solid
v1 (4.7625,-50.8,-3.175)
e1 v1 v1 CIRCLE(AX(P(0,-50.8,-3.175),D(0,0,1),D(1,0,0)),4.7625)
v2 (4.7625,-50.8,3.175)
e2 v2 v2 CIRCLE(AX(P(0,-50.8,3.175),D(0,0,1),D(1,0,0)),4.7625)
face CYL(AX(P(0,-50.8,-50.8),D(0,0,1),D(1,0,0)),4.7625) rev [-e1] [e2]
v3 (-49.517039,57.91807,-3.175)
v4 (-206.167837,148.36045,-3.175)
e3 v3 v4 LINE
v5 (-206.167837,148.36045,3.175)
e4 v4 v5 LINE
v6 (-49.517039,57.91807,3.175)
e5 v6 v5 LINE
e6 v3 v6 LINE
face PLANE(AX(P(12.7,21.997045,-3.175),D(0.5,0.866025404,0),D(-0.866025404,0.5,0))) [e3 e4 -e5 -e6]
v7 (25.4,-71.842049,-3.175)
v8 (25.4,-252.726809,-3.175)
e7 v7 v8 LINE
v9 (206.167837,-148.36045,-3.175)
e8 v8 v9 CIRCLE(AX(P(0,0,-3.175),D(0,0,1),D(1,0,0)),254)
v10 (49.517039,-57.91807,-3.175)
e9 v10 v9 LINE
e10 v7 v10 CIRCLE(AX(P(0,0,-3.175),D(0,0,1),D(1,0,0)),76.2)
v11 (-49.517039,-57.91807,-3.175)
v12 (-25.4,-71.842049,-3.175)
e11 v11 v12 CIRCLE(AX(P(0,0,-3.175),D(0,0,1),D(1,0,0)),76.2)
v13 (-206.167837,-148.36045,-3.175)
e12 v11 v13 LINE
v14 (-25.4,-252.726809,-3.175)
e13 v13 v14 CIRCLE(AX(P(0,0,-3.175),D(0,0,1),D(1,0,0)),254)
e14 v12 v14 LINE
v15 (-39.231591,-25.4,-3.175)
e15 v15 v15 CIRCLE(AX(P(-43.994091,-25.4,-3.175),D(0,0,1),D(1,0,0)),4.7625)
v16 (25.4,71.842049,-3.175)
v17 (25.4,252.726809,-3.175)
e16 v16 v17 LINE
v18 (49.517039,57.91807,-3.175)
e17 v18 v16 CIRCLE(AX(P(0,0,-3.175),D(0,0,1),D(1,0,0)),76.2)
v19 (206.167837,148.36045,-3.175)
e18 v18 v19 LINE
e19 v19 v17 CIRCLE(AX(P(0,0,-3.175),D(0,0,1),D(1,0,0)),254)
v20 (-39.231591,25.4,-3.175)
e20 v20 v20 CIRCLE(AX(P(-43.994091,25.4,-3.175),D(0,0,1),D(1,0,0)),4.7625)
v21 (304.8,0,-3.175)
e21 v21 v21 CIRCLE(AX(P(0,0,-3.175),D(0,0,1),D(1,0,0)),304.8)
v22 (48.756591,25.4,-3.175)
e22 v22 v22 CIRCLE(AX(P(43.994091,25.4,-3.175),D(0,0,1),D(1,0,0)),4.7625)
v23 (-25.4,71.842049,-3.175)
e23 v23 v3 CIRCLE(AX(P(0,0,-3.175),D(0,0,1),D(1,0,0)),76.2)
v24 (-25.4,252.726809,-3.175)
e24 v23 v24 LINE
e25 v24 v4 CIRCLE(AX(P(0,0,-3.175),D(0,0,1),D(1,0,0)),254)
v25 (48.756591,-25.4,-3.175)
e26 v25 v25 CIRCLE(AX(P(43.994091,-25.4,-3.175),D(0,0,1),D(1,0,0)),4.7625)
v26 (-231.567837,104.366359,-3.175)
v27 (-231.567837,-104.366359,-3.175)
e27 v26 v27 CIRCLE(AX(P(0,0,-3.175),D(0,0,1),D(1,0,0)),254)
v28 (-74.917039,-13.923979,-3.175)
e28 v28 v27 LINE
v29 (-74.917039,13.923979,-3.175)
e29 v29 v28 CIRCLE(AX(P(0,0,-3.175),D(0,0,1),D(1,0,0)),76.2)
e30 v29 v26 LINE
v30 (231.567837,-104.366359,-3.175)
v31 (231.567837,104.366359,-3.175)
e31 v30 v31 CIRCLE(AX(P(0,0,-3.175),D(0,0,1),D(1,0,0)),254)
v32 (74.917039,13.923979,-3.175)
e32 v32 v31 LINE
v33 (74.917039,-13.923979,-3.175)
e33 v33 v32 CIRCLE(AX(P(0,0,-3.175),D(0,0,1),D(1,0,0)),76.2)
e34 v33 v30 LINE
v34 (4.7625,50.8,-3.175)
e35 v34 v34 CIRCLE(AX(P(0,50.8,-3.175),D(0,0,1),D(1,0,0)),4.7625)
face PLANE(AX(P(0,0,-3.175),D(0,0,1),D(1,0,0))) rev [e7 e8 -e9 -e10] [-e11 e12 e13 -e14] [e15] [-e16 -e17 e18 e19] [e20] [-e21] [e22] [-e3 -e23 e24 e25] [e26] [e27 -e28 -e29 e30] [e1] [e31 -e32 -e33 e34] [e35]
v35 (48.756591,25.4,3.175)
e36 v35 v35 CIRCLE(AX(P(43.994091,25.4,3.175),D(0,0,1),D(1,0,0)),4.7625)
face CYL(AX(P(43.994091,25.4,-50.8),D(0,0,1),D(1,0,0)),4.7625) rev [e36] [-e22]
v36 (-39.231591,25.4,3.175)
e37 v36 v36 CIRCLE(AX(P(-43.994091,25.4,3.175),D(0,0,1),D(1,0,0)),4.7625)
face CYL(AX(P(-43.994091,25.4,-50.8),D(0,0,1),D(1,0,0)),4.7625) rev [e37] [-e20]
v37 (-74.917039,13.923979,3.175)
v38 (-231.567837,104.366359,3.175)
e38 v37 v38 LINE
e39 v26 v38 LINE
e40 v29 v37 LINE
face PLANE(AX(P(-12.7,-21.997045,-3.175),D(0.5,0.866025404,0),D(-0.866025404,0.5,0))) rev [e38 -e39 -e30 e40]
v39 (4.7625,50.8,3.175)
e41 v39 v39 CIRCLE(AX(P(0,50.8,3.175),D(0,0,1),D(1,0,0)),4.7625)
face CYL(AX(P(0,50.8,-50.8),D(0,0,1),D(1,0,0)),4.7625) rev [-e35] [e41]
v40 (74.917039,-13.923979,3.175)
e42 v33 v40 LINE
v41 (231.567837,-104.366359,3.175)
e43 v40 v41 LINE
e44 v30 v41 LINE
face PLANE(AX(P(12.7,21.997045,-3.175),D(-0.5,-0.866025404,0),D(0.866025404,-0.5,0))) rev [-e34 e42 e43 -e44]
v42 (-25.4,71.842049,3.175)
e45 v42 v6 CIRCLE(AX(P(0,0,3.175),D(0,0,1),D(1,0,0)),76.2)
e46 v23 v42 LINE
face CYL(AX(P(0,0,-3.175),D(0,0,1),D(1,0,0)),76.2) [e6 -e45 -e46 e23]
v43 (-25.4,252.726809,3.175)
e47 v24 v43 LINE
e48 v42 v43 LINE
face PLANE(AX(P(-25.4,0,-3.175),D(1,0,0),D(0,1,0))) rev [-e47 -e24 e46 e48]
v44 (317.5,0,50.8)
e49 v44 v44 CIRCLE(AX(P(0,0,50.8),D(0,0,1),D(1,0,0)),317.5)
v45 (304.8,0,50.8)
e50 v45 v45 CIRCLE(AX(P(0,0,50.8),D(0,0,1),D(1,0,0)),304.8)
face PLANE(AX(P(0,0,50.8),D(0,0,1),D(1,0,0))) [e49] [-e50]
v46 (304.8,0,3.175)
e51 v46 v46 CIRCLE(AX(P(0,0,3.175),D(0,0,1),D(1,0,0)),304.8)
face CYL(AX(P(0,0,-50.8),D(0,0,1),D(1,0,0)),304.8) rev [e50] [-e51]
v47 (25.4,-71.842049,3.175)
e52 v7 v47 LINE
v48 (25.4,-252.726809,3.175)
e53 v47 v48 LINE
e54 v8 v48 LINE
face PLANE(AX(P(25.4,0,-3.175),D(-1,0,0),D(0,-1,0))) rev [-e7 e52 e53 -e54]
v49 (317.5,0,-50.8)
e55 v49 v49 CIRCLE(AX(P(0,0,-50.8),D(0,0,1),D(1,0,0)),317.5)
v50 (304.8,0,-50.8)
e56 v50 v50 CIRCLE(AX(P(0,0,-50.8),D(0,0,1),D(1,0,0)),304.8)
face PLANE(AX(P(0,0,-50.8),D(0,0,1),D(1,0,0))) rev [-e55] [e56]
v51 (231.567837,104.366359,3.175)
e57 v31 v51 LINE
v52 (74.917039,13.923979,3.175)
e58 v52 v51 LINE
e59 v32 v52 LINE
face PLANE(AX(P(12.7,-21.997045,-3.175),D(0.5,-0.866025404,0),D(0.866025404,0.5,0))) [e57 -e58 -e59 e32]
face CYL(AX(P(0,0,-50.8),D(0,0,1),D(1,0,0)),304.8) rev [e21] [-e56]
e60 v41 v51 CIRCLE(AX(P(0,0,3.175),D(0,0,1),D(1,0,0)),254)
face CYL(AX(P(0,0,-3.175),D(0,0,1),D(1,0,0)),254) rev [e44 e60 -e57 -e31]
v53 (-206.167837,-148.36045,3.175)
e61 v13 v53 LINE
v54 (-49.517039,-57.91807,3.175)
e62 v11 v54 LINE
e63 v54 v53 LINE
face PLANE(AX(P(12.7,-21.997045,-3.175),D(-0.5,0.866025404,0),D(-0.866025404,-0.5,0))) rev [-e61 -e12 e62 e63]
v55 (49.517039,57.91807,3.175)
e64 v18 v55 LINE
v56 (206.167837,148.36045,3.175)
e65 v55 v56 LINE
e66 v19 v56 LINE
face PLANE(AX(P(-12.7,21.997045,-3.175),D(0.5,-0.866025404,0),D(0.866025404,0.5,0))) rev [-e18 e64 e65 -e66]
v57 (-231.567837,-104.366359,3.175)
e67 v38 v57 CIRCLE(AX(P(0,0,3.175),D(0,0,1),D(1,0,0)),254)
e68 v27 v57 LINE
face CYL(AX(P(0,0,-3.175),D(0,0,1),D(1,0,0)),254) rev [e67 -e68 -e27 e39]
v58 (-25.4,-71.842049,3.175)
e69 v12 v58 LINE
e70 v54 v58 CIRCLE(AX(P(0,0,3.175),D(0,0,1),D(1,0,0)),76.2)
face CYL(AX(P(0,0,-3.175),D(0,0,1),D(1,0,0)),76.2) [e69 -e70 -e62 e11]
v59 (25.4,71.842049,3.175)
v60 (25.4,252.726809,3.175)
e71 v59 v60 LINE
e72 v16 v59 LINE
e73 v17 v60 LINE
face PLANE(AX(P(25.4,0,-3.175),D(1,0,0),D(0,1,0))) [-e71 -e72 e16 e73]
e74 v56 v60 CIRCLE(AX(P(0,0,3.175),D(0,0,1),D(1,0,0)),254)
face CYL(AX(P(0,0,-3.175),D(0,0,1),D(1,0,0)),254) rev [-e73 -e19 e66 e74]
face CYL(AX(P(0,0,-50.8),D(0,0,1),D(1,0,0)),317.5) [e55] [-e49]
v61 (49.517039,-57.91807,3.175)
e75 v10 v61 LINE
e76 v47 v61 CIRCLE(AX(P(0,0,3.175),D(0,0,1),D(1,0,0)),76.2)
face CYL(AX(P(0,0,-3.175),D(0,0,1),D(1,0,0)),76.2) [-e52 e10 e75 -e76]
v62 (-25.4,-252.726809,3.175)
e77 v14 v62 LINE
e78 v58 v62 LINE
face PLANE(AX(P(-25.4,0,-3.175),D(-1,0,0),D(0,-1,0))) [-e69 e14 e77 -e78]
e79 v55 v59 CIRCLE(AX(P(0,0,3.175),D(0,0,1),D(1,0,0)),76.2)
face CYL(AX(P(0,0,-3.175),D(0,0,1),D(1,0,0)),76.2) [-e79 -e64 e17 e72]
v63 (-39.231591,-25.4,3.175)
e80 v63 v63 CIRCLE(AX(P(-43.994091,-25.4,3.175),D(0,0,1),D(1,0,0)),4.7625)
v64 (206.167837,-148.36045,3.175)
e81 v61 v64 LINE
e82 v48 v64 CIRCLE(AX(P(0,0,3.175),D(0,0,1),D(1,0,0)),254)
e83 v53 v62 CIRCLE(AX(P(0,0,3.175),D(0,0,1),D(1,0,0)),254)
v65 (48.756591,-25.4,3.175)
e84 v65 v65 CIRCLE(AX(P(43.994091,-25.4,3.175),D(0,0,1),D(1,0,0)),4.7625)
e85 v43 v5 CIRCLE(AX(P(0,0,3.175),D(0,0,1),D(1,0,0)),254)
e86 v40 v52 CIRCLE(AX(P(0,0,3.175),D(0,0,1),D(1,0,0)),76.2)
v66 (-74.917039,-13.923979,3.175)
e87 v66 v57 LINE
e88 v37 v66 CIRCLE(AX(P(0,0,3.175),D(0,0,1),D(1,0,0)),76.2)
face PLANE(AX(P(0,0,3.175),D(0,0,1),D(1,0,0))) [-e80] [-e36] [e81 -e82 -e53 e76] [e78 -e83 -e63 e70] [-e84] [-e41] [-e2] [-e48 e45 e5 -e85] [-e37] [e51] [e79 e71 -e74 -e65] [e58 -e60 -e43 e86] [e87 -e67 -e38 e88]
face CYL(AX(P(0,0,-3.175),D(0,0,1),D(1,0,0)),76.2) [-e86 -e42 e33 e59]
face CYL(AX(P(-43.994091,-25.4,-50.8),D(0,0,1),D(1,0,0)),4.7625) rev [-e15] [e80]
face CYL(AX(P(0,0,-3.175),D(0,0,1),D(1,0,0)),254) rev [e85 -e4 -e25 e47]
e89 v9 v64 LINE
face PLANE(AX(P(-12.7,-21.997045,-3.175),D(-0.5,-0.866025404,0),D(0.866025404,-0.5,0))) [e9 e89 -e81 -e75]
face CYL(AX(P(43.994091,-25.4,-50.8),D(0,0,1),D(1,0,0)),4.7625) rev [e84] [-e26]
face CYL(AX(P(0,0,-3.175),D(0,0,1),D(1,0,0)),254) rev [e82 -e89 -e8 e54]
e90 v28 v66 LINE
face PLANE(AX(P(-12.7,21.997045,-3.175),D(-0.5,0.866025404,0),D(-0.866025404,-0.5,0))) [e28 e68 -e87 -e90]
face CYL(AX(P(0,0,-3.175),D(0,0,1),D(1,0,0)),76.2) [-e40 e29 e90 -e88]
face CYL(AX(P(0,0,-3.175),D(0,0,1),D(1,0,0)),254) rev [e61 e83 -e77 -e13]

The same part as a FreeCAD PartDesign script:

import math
import FreeCAD as App
import Part
import Sketcher

V = App.Vector
Q = App.Units.Quantity

doc = App.newDocument("Part")
body = doc.addObject("PartDesign::Body", "Body")

# Sketch on XY plane
sketch1 = body.newObject("Sketcher::SketchObject", "Sketch")
sketch1.AttachmentSupport = (doc.getObject("XY_Plane"), [""])
sketch1.MapMode = "FlatFace"
sketch1.addGeometry([
    Part.Circle(V(0, 0, 0), V(0, 0, 1), 304.8),  # 0
    Part.ArcOfCircle(Part.Circle(V(0, 0, 0), V(0, 0, 1), 254), math.radians(-144.26083), math.radians(-95.73917)),  # 1
    Part.LineSegment(V(-206.167837, -148.36045, 0), V(-49.517039, -57.91807, 0)),  # 2
    Part.ArcOfCircle(Part.Circle(V(0, 0, 0), V(0, 0, 1), 76.2), math.radians(-130.528779), math.radians(-109.471221)),  # 3
    Part.LineSegment(V(-25.4, -71.842049, 0), V(-25.4, -252.726809, 0)),  # 4
    Part.ArcOfCircle(Part.Circle(V(0, 0, 0), V(0, 0, 1), 254), math.radians(-84.26083), math.radians(-35.73917)),  # 5
    Part.LineSegment(V(25.4, -252.726809, 0), V(25.4, -71.842049, 0)),  # 6
    Part.ArcOfCircle(Part.Circle(V(0, 0, 0), V(0, 0, 1), 76.2), math.radians(-70.528779), math.radians(-49.471221)),  # 7
    Part.LineSegment(V(49.517039, -57.91807, 0), V(206.167837, -148.36045, 0)),  # 8
    Part.ArcOfCircle(Part.Circle(V(0, 0, 0), V(0, 0, 1), 254), math.radians(155.73917), math.radians(204.26083)),  # 9
    Part.LineSegment(V(-231.567837, 104.366359, 0), V(-74.917039, 13.923979, 0)),  # 10
    Part.ArcOfCircle(Part.Circle(V(0, 0, 0), V(0, 0, 1), 76.2), math.radians(169.471221), math.radians(190.528779)),  # 11
    Part.LineSegment(V(-74.917039, -13.923979, 0), V(-231.567837, -104.366359, 0)),  # 12
    Part.ArcOfCircle(Part.Circle(V(0, 0, 0), V(0, 0, 1), 254), math.radians(95.73917), math.radians(144.26083)),  # 13
    Part.LineSegment(V(-25.4, 252.726809, 0), V(-25.4, 71.842049, 0)),  # 14
    Part.ArcOfCircle(Part.Circle(V(0, 0, 0), V(0, 0, 1), 76.2), math.radians(109.471221), math.radians(130.528779)),  # 15
    Part.LineSegment(V(-49.517039, 57.91807, 0), V(-206.167837, 148.36045, 0)),  # 16
    Part.ArcOfCircle(Part.Circle(V(0, 0, 0), V(0, 0, 1), 254), math.radians(-24.26083), math.radians(24.26083)),  # 17
    Part.LineSegment(V(231.567837, -104.366359, 0), V(74.917039, -13.923979, 0)),  # 18
    Part.ArcOfCircle(Part.Circle(V(0, 0, 0), V(0, 0, 1), 76.2), math.radians(-10.528779), math.radians(10.528779)),  # 19
    Part.LineSegment(V(74.917039, 13.923979, 0), V(231.567837, 104.366359, 0)),  # 20
    Part.ArcOfCircle(Part.Circle(V(0, 0, 0), V(0, 0, 1), 254), math.radians(35.73917), math.radians(84.26083)),  # 21
    Part.LineSegment(V(206.167837, 148.36045, 0), V(49.517039, 57.91807, 0)),  # 22
    Part.ArcOfCircle(Part.Circle(V(0, 0, 0), V(0, 0, 1), 76.2), math.radians(49.471221), math.radians(70.528779)),  # 23
    Part.LineSegment(V(25.4, 71.842049, 0), V(25.4, 252.726809, 0)),  # 24
], False)
sketch1.addConstraint([
    Sketcher.Constraint("Coincident", 1, 1, 2, 1),
    Sketcher.Constraint("Coincident", 2, 2, 3, 1),
    Sketcher.Constraint("Coincident", 3, 2, 4, 1),
    Sketcher.Constraint("Coincident", 4, 2, 1, 2),
    Sketcher.Constraint("Coincident", 5, 1, 6, 1),
    Sketcher.Constraint("Coincident", 6, 2, 7, 1),
    Sketcher.Constraint("Coincident", 7, 2, 8, 1),
    Sketcher.Constraint("Coincident", 8, 2, 5, 2),
    Sketcher.Constraint("Coincident", 9, 1, 10, 1),
    Sketcher.Constraint("Coincident", 10, 2, 11, 1),
    Sketcher.Constraint("Coincident", 11, 2, 12, 1),
    Sketcher.Constraint("Coincident", 12, 2, 9, 2),
    Sketcher.Constraint("Coincident", 13, 1, 14, 1),
    Sketcher.Constraint("Coincident", 14, 2, 15, 1),
    Sketcher.Constraint("Coincident", 15, 2, 16, 1),
    Sketcher.Constraint("Coincident", 16, 2, 13, 2),
    Sketcher.Constraint("Coincident", 17, 1, 18, 1),
    Sketcher.Constraint("Coincident", 18, 2, 19, 1),
    Sketcher.Constraint("Coincident", 19, 2, 20, 1),
    Sketcher.Constraint("Coincident", 20, 2, 17, 2),
    Sketcher.Constraint("Coincident", 21, 1, 22, 1),
    Sketcher.Constraint("Coincident", 22, 2, 23, 1),
    Sketcher.Constraint("Coincident", 23, 2, 24, 1),
    Sketcher.Constraint("Coincident", 24, 2, 21, 2),
    Sketcher.Constraint("Vertical", 4),
    Sketcher.Constraint("Vertical", 6),
    Sketcher.Constraint("Vertical", 14),
    Sketcher.Constraint("Vertical", 24),
    Sketcher.Constraint("Coincident", 0, 3, -1, 1),
    Sketcher.Constraint("Coincident", 1, 3, -1, 1),
    Sketcher.Constraint("Coincident", 3, 3, -1, 1),
    Sketcher.Constraint("Coincident", 5, 3, -1, 1),
    Sketcher.Constraint("Coincident", 7, 3, -1, 1),
    Sketcher.Constraint("Coincident", 9, 3, -1, 1),
    Sketcher.Constraint("Coincident", 11, 3, -1, 1),
    Sketcher.Constraint("Coincident", 13, 3, -1, 1),
    Sketcher.Constraint("Coincident", 15, 3, -1, 1),
    Sketcher.Constraint("Coincident", 17, 3, -1, 1),
    Sketcher.Constraint("Coincident", 19, 3, -1, 1),
    Sketcher.Constraint("Coincident", 21, 3, -1, 1),
    Sketcher.Constraint("Coincident", 23, 3, -1, 1),
    Sketcher.Constraint("Equal", 1, 5),
    Sketcher.Constraint("Equal", 3, 7),
    Sketcher.Constraint("Equal", 5, 9),
    Sketcher.Constraint("Equal", 7, 11),
    Sketcher.Constraint("Equal", 9, 13),
    Sketcher.Constraint("Equal", 11, 15),
    Sketcher.Constraint("Equal", 13, 17),
    Sketcher.Constraint("Equal", 15, 19),
    Sketcher.Constraint("Equal", 17, 21),
    Sketcher.Constraint("Equal", 19, 23),
    Sketcher.Constraint("Parallel", 8, 10),
    Sketcher.Constraint("Parallel", 2, 12),
    Sketcher.Constraint("Parallel", 10, 16),
    Sketcher.Constraint("Parallel", 16, 18),
    Sketcher.Constraint("Parallel", 12, 20),
    Sketcher.Constraint("Parallel", 20, 22),
    Sketcher.Constraint("Horizontal", 4, 2, 5, 1),
    Sketcher.Constraint("Horizontal", 2, 2, 7, 2),
    Sketcher.Constraint("Horizontal", 1, 1, 8, 2),
    Sketcher.Constraint("Horizontal", 12, 2, 17, 1),
    Sketcher.Constraint("Horizontal", 10, 2, 19, 2),
    Sketcher.Constraint("Horizontal", 16, 2, 21, 1),
    Sketcher.Constraint("Horizontal", 14, 2, 23, 2),
    Sketcher.Constraint("Vertical", 10, 2, 11, 2),
    Sketcher.Constraint("Vertical", 4, 2, 13, 1),
    Sketcher.Constraint("Vertical", 2, 2, 15, 2),
    Sketcher.Constraint("Equal", 8, 10),
    Sketcher.Constraint("Diameter", 0, Q("24 in")),
    Sketcher.Constraint("Radius", 1, Q("10 in")),
    Sketcher.Constraint("Radius", 3, Q("3 in")),
    Sketcher.Constraint("DistanceX", 3, 2, -1, 1, Q("1 in")),
    Sketcher.Constraint("Angle", 2, Q("30 deg")),
    Sketcher.Constraint("DistanceX", 11, 2, 2, 2, Q("1 in")),
])
pad1 = body.newObject("PartDesign::Pad", "Pad")
pad1.Profile = sketch1
pad1.Type = "TwoLengths"
pad1.Length = Q("0.125 in")
pad1.Length2 = Q("0.125 in")

# Sketch on XY plane
sketch2 = body.newObject("Sketcher::SketchObject", "Sketch001")
sketch2.AttachmentSupport = (doc.getObject("XY_Plane"), [""])
sketch2.MapMode = "FlatFace"
sketch2.addGeometry([
    Part.Circle(V(0, 0, 0), V(0, 0, 1), 317.5),
    Part.Circle(V(0, 0, 0), V(0, 0, 1), 304.8),
], False)
sketch2.addConstraint([
    Sketcher.Constraint("Coincident", 0, 3, -1, 1),
    Sketcher.Constraint("Coincident", 1, 3, -1, 1),
    Sketcher.Constraint("Diameter", 0, Q("25 in")),
    Sketcher.Constraint("Diameter", 1, Q("24 in")),
])
pad2 = body.newObject("PartDesign::Pad", "Pad001")
pad2.Profile = sketch2
pad2.Type = "TwoLengths"
pad2.Length = Q("2 in")
pad2.Length2 = Q("2 in")

# Sketch on XY plane
sketch3 = body.newObject("Sketcher::SketchObject", "Sketch002")
sketch3.AttachmentSupport = (doc.getObject("XY_Plane"), [""])
sketch3.MapMode = "FlatFace"
sketch3.AttachmentOffset = App.Placement(V(0, 0, 0.125 * 25.4), App.Rotation())
sketch3.addGeometry([
    Part.Circle(V(0, 50.8, 0), V(0, 0, 1), 4.7625),  # 0
    Part.Circle(V(43.994091, 25.4, 0), V(0, 0, 1), 4.7625),  # 1
    Part.Circle(V(43.994091, -25.4, 0), V(0, 0, 1), 4.7625),  # 2
    Part.Circle(V(0, -50.8, 0), V(0, 0, 1), 4.7625),  # 3
    Part.Circle(V(-43.994091, -25.4, 0), V(0, 0, 1), 4.7625),  # 4
    Part.Circle(V(-43.994091, 25.4, 0), V(0, 0, 1), 4.7625),  # 5
], False)
sketch3.addConstraint([
    Sketcher.Constraint("Equal", 0, 1),
    Sketcher.Constraint("Equal", 1, 2),
    Sketcher.Constraint("Equal", 2, 3),
    Sketcher.Constraint("Equal", 3, 4),
    Sketcher.Constraint("Equal", 4, 5),
    Sketcher.Constraint("Symmetric", 0, 3, 3, 3, -1, 1),
    Sketcher.Constraint("Symmetric", 1, 3, 4, 3, -1, 1),
    Sketcher.Constraint("Symmetric", 2, 3, 5, 3, -1, 1),
    Sketcher.Constraint("Symmetric", 2, 3, 4, 3, -2),
    Sketcher.Constraint("PointOnObject", 0, 3, -2),
    Sketcher.Constraint("Diameter", 0, Q("0.375 in")),
    Sketcher.Constraint("DistanceY", -1, 1, 0, 3, Q("2 in")),
    Sketcher.Constraint("DistanceY", -1, 1, 1, 3, Q("1 in")),
    Sketcher.Constraint("DistanceX", -1, 1, 1, 3, Q("43.994091 mm")),
])
pocket1 = body.newObject("PartDesign::Pocket", "Pocket")
pocket1.Profile = sketch3
pocket1.Type = "ThroughAll"

doc.recompute()
